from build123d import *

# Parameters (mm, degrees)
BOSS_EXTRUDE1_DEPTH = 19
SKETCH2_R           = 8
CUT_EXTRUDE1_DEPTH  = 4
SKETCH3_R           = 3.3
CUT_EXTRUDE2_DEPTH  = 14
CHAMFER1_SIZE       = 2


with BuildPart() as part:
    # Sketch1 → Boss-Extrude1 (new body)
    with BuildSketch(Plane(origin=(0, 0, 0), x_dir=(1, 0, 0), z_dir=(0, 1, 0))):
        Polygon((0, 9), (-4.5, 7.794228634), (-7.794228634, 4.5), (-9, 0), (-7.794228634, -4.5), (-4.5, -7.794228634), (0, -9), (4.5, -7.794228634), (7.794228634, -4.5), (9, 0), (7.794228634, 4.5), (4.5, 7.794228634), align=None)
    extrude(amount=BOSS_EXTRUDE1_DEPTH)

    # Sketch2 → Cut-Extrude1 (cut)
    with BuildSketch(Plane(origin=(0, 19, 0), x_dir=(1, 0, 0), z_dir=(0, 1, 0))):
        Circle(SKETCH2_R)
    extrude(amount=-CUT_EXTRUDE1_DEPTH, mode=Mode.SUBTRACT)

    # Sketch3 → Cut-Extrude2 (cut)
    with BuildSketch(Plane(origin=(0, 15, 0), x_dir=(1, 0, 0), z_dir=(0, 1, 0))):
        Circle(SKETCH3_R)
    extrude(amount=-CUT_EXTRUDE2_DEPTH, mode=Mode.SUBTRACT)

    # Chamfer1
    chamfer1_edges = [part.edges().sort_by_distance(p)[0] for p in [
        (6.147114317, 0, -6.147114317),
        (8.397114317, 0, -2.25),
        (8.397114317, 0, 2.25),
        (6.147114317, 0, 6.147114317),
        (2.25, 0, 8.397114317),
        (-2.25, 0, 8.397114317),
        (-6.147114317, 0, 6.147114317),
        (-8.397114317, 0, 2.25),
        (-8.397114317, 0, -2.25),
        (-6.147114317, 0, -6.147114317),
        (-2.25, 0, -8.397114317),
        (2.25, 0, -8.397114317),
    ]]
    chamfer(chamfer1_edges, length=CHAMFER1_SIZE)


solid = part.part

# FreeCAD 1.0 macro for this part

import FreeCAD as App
import Part
import Sketcher
Q = App.Units.Quantity


def edges_at(feature, points):
    """Names of the edges that pass closest to the given points."""
    edges = feature.Shape.Edges
    near = lambda p: min(range(len(edges)), key=lambda i: edges[i].distToShape(Part.Vertex(*p))[0])
    return sorted({f"Edge{near(p) + 1}" for p in points})

doc = App.newDocument("Part")
body = doc.addObject("PartDesign::Body", "Body")

sketch1 = body.newObject("Sketcher::SketchObject", "Sketch")
sketch1.AttachmentSupport = (doc.getObject("XZ_Plane"), [""])
sketch1.MapMode = "FlatFace"
sketch1.addGeometry([
    Part.LineSegment(App.Vector(0, -9, 0), App.Vector(-4.5, -7.8, 0)),
    Part.LineSegment(App.Vector(-4.5, -7.8, 0), App.Vector(-7.8, -4.5, 0)),
    Part.LineSegment(App.Vector(-7.8, -4.5, 0), App.Vector(-9, 0, 0)),
    Part.LineSegment(App.Vector(-9, 0, 0), App.Vector(-7.8, 4.5, 0)),
    Part.LineSegment(App.Vector(-7.8, 4.5, 0), App.Vector(-4.5, 7.8, 0)),
    Part.LineSegment(App.Vector(-4.5, 7.8, 0), App.Vector(0, 9, 0)),
    Part.LineSegment(App.Vector(0, 9, 0), App.Vector(4.5, 7.8, 0)),
    Part.LineSegment(App.Vector(4.5, 7.8, 0), App.Vector(7.8, 4.5, 0)),
    Part.LineSegment(App.Vector(7.8, 4.5, 0), App.Vector(9, 0, 0)),
    Part.LineSegment(App.Vector(9, 0, 0), App.Vector(7.8, -4.5, 0)),
    Part.LineSegment(App.Vector(7.8, -4.5, 0), App.Vector(4.5, -7.8, 0)),
    Part.LineSegment(App.Vector(4.5, -7.8, 0), App.Vector(0, -9, 0)),
], False)
sketch1.addConstraint([
    Sketcher.Constraint("Coincident", 0, 2, 1, 1),
    Sketcher.Constraint("Coincident", 1, 2, 2, 1),
    Sketcher.Constraint("Coincident", 2, 2, 3, 1),
    Sketcher.Constraint("Coincident", 3, 2, 4, 1),
    Sketcher.Constraint("Coincident", 4, 2, 5, 1),
    Sketcher.Constraint("Coincident", 5, 2, 6, 1),
    Sketcher.Constraint("Coincident", 6, 2, 7, 1),
    Sketcher.Constraint("Coincident", 7, 2, 8, 1),
    Sketcher.Constraint("Coincident", 8, 2, 9, 1),
    Sketcher.Constraint("Coincident", 9, 2, 10, 1),
    Sketcher.Constraint("Coincident", 10, 2, 11, 1),
    Sketcher.Constraint("Coincident", 11, 2, 0, 1),
    Sketcher.Constraint("Symmetric", 0, 2, 6, 2, -1, 1),
    Sketcher.Constraint("Symmetric", 1, 2, 7, 2, -1, 1),
    Sketcher.Constraint("Symmetric", 2, 2, 8, 2, -1, 1),
    Sketcher.Constraint("Symmetric", 3, 2, 9, 2, -1, 1),
    Sketcher.Constraint("Symmetric", 4, 2, 10, 2, -1, 1),
    Sketcher.Constraint("Symmetric", 5, 2, 11, 2, -1, 1),
    Sketcher.Constraint("Symmetric", 4, 2, 6, 2, -2),
    Sketcher.Constraint("Symmetric", 3, 2, 7, 2, -2),
    Sketcher.Constraint("PointOnObject", 2, 2, -1),
    Sketcher.Constraint("PointOnObject", 5, 2, -2),
    Sketcher.Constraint("Perpendicular", 0, 3),
    Sketcher.Constraint("Perpendicular", 1, 4),
    Sketcher.Constraint("Equal", 0, 1),
    Sketcher.Constraint("Equal", 1, 2),
    Sketcher.Constraint("Angle", 0, Q("165 deg")),
    Sketcher.Constraint("DistanceX", 2, 2, -1, 1, 9.0),
])
pad1 = body.newObject("PartDesign::Pad", "Pad")
pad1.Profile = sketch1
pad1.Length = 19
pad1.Reversed = True

sketch2 = body.newObject("Sketcher::SketchObject", "Sketch001")
sketch2.AttachmentSupport = (doc.getObject("XZ_Plane"), [""])
sketch2.MapMode = "FlatFace"
sketch2.AttachmentOffset = App.Placement(App.Vector(0, 0, -19), App.Rotation())
sketch2.addGeometry(Part.Circle(App.Vector(0, 0, 0), App.Vector(0, 0, 1), 8), False)
sketch2.addConstraint([
    Sketcher.Constraint("Coincident", 0, 3, -1, 1),
    Sketcher.Constraint("Diameter", 0, 16.0),
])
pocket1 = body.newObject("PartDesign::Pocket", "Pocket")
pocket1.Profile = sketch2
pocket1.Length = 4
pocket1.Reversed = True

sketch3 = body.newObject("Sketcher::SketchObject", "Sketch002")
sketch3.AttachmentSupport = (doc.getObject("XZ_Plane"), [""])
sketch3.MapMode = "FlatFace"
sketch3.AttachmentOffset = App.Placement(App.Vector(0, 0, -15), App.Rotation())
sketch3.addGeometry(Part.Circle(App.Vector(0, 0, 0), App.Vector(0, 0, 1), 3.3), False)
sketch3.addConstraint([
    Sketcher.Constraint("Coincident", 0, 3, -1, 1),
    Sketcher.Constraint("Diameter", 0, 6.6),
])
pocket2 = body.newObject("PartDesign::Pocket", "Pocket001")
pocket2.Profile = sketch3
pocket2.Length = 14
pocket2.Reversed = True
doc.recompute()

chamfer = body.newObject("PartDesign::Chamfer", "Chamfer")
chamfer.Base = (pocket2, edges_at(pocket2, [
    (6.147, 0, -6.147),
    (8.397, 0, -2.25),
    (8.397, 0, 2.25),
    (6.147, 0, 6.147),
    (2.25, 0, 8.397),
    (-2.25, 0, 8.397),
    (-6.147, 0, 6.147),
    (-8.397, 0, 2.25),
    (-8.397, 0, -2.25),
    (-6.147, 0, -6.147),
    (-2.25, 0, -8.397),
    (2.25, 0, -8.397),
]))
chamfer.Size = 2

doc.recompute()
